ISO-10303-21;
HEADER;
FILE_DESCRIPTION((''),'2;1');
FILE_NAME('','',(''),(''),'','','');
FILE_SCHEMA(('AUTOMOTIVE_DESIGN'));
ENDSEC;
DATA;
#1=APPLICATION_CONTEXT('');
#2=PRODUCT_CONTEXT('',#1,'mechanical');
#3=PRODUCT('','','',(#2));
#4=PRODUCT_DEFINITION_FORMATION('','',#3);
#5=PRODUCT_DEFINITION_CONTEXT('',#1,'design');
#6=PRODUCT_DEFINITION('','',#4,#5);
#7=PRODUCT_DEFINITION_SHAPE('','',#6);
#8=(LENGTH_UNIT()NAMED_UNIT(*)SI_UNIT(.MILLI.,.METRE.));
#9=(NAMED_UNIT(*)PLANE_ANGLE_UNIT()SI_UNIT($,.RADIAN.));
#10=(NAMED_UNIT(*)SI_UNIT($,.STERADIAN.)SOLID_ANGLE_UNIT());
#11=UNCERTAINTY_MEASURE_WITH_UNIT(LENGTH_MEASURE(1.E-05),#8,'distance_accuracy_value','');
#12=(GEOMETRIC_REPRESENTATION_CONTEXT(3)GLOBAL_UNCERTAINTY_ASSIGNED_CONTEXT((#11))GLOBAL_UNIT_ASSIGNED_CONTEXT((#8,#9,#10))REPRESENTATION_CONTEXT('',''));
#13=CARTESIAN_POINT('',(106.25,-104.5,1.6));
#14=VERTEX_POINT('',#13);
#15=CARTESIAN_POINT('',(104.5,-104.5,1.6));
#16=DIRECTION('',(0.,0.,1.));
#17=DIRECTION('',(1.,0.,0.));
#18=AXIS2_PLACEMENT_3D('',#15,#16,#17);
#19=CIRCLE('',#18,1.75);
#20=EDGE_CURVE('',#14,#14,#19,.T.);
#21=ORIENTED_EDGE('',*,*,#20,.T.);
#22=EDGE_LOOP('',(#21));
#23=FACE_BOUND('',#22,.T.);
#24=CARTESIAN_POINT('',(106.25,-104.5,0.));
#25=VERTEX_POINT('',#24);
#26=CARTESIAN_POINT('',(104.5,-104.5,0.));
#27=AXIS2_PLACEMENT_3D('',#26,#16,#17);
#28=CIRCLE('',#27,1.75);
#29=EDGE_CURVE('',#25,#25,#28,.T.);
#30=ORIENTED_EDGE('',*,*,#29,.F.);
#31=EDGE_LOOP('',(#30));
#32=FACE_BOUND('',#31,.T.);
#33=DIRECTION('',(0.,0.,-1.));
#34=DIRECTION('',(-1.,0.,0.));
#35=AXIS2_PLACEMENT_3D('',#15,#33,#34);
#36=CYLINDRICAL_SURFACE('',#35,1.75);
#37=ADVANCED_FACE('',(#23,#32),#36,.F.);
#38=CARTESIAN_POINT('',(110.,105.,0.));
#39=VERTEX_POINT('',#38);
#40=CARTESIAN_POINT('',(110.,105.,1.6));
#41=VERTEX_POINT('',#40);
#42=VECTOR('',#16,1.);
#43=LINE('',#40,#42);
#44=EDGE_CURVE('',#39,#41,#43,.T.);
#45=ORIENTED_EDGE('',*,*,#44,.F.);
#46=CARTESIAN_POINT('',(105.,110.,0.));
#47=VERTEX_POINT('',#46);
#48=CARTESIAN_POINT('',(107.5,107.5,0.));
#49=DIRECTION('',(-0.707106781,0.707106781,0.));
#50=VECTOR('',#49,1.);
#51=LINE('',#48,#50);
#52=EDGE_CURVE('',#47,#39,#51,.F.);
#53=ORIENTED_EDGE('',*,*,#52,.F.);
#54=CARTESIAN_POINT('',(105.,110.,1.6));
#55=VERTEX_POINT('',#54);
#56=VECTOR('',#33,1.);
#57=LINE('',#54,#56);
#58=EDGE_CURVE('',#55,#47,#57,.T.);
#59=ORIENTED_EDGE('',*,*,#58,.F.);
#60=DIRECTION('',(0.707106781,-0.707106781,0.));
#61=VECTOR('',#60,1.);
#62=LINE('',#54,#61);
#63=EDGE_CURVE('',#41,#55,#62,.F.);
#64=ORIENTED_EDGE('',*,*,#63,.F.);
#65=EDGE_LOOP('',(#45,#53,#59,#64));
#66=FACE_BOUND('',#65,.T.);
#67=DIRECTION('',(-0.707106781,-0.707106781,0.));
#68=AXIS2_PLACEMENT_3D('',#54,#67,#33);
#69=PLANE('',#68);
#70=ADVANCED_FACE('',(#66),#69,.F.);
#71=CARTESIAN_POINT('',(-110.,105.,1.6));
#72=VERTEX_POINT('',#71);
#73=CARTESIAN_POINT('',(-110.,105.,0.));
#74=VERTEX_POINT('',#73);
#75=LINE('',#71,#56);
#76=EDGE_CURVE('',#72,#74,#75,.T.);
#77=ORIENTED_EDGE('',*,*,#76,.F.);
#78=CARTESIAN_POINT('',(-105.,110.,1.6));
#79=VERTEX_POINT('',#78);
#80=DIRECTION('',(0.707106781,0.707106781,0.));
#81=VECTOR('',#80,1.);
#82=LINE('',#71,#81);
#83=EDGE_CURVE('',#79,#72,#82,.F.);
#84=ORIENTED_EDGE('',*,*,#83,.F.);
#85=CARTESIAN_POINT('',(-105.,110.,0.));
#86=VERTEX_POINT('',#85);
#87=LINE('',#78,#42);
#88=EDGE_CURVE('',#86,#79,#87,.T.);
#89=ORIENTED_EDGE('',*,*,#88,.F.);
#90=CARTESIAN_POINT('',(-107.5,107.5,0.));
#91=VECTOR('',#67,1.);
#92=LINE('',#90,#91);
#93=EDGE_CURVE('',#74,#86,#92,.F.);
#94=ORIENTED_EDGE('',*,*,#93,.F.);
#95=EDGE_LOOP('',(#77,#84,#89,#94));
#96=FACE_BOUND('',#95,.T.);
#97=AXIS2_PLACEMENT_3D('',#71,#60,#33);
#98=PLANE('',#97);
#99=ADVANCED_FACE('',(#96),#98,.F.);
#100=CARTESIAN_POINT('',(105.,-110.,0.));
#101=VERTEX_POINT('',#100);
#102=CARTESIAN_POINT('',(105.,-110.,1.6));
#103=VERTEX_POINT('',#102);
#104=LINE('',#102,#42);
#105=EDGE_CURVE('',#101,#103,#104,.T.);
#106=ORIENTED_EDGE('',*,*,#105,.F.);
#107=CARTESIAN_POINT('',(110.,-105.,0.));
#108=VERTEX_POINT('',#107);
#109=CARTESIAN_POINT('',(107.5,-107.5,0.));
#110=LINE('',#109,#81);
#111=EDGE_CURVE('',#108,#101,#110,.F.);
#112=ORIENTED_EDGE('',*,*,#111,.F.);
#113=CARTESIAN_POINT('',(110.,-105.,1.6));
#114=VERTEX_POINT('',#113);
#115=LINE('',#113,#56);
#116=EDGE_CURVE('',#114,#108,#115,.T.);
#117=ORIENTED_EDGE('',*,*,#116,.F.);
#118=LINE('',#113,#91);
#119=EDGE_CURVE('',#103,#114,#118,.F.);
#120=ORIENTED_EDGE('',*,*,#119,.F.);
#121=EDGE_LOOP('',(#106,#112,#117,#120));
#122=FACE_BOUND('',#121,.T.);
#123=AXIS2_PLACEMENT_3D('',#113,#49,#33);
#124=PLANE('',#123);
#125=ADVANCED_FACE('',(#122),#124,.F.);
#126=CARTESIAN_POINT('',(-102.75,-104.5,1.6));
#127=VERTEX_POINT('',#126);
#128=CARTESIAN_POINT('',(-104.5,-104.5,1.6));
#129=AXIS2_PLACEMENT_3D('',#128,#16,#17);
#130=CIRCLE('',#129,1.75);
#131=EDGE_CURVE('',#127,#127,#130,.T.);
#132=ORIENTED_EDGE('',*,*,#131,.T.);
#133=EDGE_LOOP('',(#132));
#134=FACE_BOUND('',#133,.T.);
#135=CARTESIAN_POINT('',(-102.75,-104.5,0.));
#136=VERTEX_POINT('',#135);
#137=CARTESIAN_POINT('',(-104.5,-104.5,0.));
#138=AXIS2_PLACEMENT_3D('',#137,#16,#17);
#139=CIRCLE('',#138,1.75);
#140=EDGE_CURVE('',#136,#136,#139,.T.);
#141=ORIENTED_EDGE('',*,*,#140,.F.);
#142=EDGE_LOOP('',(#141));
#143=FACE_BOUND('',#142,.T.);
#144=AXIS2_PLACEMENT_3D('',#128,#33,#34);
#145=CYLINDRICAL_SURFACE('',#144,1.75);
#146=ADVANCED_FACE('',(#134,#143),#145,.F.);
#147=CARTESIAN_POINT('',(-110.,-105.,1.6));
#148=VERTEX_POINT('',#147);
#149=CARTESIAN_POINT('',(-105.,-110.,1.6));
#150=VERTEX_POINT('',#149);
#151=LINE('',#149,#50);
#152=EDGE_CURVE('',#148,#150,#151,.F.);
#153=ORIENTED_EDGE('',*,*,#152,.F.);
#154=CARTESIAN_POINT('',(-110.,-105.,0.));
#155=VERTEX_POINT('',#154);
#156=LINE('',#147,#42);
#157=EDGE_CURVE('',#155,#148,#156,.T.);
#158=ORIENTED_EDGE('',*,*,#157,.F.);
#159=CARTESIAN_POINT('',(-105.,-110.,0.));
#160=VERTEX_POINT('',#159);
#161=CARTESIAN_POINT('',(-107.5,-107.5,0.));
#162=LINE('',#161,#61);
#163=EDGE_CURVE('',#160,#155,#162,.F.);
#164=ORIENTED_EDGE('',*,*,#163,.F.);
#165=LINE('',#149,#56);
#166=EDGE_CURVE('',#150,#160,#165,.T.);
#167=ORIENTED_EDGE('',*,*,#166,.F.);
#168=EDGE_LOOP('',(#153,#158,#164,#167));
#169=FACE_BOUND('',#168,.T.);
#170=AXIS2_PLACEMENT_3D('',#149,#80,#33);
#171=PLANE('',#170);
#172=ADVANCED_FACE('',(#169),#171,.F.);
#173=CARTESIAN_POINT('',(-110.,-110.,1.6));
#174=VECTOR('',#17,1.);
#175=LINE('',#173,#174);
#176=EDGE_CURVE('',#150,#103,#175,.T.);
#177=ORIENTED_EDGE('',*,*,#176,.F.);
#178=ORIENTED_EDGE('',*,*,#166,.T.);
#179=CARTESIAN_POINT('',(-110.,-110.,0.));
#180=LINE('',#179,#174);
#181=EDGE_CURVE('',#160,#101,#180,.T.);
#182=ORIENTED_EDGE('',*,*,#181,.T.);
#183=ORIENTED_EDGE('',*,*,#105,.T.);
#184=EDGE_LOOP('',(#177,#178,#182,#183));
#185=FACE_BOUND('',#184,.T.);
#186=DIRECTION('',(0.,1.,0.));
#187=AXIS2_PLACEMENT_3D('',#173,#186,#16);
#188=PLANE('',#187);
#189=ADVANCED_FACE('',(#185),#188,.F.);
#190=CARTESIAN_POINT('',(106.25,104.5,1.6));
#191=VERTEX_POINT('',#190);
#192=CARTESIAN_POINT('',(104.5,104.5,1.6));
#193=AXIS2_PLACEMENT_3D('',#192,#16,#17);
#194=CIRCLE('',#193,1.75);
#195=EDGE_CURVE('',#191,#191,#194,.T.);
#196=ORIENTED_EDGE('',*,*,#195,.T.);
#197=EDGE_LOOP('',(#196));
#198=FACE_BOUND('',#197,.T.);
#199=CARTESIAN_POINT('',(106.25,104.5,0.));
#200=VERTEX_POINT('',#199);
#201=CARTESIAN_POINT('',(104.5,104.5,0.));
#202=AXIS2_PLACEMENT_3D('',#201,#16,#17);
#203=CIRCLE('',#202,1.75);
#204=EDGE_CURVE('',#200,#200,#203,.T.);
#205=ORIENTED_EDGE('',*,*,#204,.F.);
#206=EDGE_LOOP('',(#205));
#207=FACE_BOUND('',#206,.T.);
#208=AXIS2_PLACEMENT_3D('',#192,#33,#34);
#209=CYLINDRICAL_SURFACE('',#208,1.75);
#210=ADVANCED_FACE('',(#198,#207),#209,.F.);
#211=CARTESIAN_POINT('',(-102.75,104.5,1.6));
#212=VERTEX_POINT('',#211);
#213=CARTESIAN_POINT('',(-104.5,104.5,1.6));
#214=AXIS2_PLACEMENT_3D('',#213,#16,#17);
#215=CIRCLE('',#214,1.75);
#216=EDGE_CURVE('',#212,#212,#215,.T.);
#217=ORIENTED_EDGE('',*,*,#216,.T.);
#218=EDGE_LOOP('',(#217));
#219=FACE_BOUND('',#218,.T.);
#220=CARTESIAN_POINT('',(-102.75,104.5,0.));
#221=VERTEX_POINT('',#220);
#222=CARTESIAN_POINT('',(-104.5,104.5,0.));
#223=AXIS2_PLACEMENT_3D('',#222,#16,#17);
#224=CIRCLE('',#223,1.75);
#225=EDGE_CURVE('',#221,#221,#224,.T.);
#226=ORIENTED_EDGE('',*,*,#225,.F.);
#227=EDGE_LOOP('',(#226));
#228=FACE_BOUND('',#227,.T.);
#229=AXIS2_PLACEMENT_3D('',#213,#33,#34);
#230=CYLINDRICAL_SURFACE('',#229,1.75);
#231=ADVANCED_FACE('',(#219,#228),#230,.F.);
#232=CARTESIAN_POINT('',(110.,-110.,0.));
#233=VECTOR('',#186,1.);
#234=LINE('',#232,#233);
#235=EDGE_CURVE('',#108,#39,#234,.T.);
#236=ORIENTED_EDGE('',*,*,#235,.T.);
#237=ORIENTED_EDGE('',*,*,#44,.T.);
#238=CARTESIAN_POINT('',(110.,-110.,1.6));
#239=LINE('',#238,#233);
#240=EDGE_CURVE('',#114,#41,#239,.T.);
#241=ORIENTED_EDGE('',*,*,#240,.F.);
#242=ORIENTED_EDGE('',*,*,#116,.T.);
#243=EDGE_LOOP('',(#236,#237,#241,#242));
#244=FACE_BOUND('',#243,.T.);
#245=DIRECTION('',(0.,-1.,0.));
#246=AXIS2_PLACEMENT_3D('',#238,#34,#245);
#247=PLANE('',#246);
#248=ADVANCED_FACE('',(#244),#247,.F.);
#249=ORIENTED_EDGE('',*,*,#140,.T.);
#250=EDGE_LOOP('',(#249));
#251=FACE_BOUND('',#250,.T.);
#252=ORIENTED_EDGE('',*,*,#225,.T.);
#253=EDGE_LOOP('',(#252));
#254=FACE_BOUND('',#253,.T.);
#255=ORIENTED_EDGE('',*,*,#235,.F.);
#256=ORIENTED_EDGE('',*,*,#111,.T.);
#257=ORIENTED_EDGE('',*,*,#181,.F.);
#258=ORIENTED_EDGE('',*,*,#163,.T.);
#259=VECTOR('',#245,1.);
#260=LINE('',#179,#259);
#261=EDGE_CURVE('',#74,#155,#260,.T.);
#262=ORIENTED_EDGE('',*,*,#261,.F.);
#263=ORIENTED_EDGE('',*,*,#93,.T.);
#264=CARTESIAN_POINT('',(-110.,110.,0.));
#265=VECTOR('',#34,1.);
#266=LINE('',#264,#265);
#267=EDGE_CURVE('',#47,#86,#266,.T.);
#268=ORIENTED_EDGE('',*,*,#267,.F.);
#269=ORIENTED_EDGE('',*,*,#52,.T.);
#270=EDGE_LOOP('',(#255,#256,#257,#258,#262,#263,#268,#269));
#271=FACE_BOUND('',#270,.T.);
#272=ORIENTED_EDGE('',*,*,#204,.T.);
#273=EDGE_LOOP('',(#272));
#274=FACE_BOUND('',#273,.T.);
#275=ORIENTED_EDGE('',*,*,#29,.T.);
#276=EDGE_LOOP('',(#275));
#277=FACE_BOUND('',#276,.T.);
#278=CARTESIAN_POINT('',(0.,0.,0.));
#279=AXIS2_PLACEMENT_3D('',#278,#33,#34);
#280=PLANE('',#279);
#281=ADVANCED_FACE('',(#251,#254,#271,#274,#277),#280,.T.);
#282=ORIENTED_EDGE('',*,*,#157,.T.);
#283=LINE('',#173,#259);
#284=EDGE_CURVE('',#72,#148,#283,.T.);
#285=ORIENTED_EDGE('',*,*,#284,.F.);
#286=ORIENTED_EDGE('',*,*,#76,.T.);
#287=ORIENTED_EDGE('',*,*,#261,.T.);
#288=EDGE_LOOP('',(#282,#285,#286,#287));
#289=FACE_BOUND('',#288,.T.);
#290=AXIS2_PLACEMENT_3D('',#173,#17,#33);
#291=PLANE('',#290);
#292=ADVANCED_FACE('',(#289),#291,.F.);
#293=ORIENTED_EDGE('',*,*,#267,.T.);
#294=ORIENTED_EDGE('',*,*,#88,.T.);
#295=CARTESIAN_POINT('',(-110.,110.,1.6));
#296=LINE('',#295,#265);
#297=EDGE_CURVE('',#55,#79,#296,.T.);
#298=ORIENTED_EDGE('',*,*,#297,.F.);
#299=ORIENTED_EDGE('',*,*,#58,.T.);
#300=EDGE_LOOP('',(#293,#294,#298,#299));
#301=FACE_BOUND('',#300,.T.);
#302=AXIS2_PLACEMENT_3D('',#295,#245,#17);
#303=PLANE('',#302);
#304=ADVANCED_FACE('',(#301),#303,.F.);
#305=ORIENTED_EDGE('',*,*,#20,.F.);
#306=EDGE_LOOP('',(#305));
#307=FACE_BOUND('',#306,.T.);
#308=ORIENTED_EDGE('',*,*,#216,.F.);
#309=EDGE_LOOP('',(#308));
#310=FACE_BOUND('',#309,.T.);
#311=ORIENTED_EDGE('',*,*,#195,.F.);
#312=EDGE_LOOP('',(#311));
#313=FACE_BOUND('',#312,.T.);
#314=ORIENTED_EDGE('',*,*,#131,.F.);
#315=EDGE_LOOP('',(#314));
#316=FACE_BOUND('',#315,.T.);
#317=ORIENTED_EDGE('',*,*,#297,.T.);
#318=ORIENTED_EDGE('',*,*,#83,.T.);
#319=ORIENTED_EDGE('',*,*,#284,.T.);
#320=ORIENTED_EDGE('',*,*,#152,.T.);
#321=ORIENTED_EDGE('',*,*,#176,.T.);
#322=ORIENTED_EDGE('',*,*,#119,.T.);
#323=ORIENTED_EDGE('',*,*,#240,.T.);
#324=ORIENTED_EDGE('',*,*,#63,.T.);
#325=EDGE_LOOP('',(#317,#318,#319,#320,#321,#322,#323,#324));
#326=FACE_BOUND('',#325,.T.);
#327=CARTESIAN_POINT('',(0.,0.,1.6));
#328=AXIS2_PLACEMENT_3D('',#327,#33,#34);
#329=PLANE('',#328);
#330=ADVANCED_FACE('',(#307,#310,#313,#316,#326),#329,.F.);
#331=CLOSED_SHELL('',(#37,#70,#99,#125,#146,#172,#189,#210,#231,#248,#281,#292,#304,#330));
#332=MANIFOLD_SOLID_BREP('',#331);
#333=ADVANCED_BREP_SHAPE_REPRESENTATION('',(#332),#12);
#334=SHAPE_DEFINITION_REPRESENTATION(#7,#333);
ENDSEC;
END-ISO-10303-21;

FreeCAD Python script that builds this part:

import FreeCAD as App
import Part
import Sketcher


def edges_at(feature, points):
    """Names of the edges that pass closest to the given points."""
    edges = feature.Shape.Edges
    near = lambda p: min(range(len(edges)), key=lambda i: edges[i].distToShape(Part.Vertex(*p))[0])
    return sorted({f"Edge{near(p) + 1}" for p in points})


def add_polygon(sketch, points):
    """Adds a closed chain of lines whose ends are joined by coincident constraints."""
    first, n = sketch.GeometryCount, len(points)
    for a, b in zip(points, points[1:] + points[:1]):
        sketch.addGeometry(Part.LineSegment(App.Vector(*a, 0), App.Vector(*b, 0)), False)
    for i in range(n):
        sketch.addConstraint(Sketcher.Constraint("Coincident", first + i, 2, first + (i + 1) % n, 1))

doc = App.newDocument("Part")
body = doc.addObject("PartDesign::Body", "Body")

sketch1 = doc.addObject("Sketcher::SketchObject", "Sketch")
body.addObject(sketch1)
sketch1.AttachmentSupport = (doc.XY_Plane, [""])
sketch1.MapMode = "FlatFace"
add_polygon(sketch1, [(-110, 110), (-110, -110), (110, -110), (110, 110)])
sketch1.addGeometry(Part.Circle(App.Vector(-104.5, -104.5, 0), App.Vector(0, 0, 1), 1.75), False)
sketch1.addGeometry(Part.Circle(App.Vector(104.5, -104.5, 0), App.Vector(0, 0, 1), 1.75), False)
sketch1.addGeometry(Part.Circle(App.Vector(-104.5, 104.5, 0), App.Vector(0, 0, 1), 1.75), False)
sketch1.addGeometry(Part.Circle(App.Vector(104.5, 104.5, 0), App.Vector(0, 0, 1), 1.75), False)
sketch1.addConstraint(Sketcher.Constraint("Vertical", 0))
sketch1.addConstraint(Sketcher.Constraint("Horizontal", 1))
sketch1.addConstraint(Sketcher.Constraint("Vertical", 2))
sketch1.addConstraint(Sketcher.Constraint("Horizontal", 3))
sketch1.addConstraint(Sketcher.Constraint("Equal", 4, 5))
sketch1.addConstraint(Sketcher.Constraint("Equal", 5, 6))
sketch1.addConstraint(Sketcher.Constraint("Equal", 6, 7))
sketch1.addConstraint(Sketcher.Constraint("Symmetric", 5, 3, 6, 3, -1, 1))
sketch1.addConstraint(Sketcher.Constraint("Symmetric", 4, 3, 7, 3, -1, 1))
sketch1.addConstraint(Sketcher.Constraint("Symmetric", 0, 2, 2, 2, -1, 1))
sketch1.addConstraint(Sketcher.Constraint("Symmetric", 4, 3, 5, 3, -2))
sketch1.addConstraint(Sketcher.Constraint("Equal", 3, 0))
sketch1.addConstraint(Sketcher.Constraint("Diameter", 4, 3.5))
sketch1.addConstraint(Sketcher.Constraint("DistanceX", 1, 1, 1, 2, 220.0))
sketch1.addConstraint(Sketcher.Constraint("DistanceX", 4, 3, 5, 3, 209.0))
sketch1.addConstraint(Sketcher.Constraint("DistanceY", 4, 3, 6, 3, 209.0))
pad1 = doc.addObject("PartDesign::Pad", "Pad")
body.addObject(pad1)
pad1.Profile = sketch1
pad1.Length = 1.6
doc.recompute()

chamfer = doc.addObject("PartDesign::Chamfer", "Chamfer")
body.addObject(chamfer)
chamfer.Base = (pad1, edges_at(pad1, [
    (110, -110, 0.8),
    (-110, -110, 0.8),
    (-110, 110, 0.8),
    (110, 110, 0.8),
]))
chamfer.Size = 5

doc.recompute()
